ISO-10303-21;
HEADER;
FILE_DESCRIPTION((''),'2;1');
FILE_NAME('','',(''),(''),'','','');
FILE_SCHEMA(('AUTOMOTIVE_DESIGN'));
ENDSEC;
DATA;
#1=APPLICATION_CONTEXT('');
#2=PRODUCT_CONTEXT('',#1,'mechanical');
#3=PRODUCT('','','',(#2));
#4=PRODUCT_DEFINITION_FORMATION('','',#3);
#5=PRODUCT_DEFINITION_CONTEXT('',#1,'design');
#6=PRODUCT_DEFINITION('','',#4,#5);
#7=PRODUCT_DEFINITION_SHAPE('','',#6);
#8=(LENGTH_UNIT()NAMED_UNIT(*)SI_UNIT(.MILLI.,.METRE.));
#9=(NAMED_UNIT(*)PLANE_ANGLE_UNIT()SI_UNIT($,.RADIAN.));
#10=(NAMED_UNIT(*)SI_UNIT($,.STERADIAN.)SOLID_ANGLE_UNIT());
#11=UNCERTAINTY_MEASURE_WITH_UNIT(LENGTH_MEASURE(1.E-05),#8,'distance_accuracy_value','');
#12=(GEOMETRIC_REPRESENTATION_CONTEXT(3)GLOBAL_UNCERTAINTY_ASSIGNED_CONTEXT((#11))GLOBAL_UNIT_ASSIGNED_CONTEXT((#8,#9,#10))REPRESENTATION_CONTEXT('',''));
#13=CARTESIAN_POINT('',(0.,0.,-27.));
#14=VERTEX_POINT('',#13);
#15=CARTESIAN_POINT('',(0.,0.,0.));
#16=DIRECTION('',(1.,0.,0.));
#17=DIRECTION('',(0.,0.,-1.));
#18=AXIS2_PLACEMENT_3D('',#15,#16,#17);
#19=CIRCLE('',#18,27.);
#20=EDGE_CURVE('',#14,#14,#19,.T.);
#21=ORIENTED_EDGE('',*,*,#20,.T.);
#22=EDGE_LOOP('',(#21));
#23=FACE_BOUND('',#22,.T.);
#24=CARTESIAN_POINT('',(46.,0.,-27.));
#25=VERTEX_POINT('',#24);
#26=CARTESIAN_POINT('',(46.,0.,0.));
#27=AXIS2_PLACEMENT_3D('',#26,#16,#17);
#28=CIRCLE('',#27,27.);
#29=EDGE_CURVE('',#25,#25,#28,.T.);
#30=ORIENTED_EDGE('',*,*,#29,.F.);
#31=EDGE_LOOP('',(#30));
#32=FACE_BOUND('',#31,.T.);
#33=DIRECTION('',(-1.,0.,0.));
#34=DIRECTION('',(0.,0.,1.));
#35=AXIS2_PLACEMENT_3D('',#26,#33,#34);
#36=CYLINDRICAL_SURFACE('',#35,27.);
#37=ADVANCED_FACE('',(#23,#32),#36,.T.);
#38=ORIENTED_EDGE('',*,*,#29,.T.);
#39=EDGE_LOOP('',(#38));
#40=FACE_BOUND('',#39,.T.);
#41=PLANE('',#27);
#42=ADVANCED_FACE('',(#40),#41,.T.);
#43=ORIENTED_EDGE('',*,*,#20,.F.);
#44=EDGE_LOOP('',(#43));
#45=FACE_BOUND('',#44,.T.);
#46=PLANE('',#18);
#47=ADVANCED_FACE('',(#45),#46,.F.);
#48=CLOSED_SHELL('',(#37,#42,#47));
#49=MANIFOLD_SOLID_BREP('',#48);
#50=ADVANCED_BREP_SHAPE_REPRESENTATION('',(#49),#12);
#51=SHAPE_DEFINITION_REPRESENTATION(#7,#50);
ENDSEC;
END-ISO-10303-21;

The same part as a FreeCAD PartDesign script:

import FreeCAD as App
import Part
import Sketcher
Q = App.Units.Quantity

doc = App.newDocument("Part")
body = doc.addObject("PartDesign::Body", "Body")

# Sketch on YZ plane
sketch1 = body.newObject("Sketcher::SketchObject", "Sketch")
sketch1.AttachmentSupport = (doc.getObject("YZ_Plane"), [""])
sketch1.MapMode = "FlatFace"
sketch1.addGeometry(Part.Circle(App.Vector(0, 0, 0), App.Vector(0, 0, 1), 27), False)
sketch1.addConstraint(Sketcher.Constraint("Coincident", 0, 3, -1, 1))
sketch1.addConstraint(Sketcher.Constraint("Diameter", 0, Q("54 mm")))
pad1 = body.newObject("PartDesign::Pad", "Pad")
pad1.Profile = sketch1
pad1.Length = 46

doc.recompute()
